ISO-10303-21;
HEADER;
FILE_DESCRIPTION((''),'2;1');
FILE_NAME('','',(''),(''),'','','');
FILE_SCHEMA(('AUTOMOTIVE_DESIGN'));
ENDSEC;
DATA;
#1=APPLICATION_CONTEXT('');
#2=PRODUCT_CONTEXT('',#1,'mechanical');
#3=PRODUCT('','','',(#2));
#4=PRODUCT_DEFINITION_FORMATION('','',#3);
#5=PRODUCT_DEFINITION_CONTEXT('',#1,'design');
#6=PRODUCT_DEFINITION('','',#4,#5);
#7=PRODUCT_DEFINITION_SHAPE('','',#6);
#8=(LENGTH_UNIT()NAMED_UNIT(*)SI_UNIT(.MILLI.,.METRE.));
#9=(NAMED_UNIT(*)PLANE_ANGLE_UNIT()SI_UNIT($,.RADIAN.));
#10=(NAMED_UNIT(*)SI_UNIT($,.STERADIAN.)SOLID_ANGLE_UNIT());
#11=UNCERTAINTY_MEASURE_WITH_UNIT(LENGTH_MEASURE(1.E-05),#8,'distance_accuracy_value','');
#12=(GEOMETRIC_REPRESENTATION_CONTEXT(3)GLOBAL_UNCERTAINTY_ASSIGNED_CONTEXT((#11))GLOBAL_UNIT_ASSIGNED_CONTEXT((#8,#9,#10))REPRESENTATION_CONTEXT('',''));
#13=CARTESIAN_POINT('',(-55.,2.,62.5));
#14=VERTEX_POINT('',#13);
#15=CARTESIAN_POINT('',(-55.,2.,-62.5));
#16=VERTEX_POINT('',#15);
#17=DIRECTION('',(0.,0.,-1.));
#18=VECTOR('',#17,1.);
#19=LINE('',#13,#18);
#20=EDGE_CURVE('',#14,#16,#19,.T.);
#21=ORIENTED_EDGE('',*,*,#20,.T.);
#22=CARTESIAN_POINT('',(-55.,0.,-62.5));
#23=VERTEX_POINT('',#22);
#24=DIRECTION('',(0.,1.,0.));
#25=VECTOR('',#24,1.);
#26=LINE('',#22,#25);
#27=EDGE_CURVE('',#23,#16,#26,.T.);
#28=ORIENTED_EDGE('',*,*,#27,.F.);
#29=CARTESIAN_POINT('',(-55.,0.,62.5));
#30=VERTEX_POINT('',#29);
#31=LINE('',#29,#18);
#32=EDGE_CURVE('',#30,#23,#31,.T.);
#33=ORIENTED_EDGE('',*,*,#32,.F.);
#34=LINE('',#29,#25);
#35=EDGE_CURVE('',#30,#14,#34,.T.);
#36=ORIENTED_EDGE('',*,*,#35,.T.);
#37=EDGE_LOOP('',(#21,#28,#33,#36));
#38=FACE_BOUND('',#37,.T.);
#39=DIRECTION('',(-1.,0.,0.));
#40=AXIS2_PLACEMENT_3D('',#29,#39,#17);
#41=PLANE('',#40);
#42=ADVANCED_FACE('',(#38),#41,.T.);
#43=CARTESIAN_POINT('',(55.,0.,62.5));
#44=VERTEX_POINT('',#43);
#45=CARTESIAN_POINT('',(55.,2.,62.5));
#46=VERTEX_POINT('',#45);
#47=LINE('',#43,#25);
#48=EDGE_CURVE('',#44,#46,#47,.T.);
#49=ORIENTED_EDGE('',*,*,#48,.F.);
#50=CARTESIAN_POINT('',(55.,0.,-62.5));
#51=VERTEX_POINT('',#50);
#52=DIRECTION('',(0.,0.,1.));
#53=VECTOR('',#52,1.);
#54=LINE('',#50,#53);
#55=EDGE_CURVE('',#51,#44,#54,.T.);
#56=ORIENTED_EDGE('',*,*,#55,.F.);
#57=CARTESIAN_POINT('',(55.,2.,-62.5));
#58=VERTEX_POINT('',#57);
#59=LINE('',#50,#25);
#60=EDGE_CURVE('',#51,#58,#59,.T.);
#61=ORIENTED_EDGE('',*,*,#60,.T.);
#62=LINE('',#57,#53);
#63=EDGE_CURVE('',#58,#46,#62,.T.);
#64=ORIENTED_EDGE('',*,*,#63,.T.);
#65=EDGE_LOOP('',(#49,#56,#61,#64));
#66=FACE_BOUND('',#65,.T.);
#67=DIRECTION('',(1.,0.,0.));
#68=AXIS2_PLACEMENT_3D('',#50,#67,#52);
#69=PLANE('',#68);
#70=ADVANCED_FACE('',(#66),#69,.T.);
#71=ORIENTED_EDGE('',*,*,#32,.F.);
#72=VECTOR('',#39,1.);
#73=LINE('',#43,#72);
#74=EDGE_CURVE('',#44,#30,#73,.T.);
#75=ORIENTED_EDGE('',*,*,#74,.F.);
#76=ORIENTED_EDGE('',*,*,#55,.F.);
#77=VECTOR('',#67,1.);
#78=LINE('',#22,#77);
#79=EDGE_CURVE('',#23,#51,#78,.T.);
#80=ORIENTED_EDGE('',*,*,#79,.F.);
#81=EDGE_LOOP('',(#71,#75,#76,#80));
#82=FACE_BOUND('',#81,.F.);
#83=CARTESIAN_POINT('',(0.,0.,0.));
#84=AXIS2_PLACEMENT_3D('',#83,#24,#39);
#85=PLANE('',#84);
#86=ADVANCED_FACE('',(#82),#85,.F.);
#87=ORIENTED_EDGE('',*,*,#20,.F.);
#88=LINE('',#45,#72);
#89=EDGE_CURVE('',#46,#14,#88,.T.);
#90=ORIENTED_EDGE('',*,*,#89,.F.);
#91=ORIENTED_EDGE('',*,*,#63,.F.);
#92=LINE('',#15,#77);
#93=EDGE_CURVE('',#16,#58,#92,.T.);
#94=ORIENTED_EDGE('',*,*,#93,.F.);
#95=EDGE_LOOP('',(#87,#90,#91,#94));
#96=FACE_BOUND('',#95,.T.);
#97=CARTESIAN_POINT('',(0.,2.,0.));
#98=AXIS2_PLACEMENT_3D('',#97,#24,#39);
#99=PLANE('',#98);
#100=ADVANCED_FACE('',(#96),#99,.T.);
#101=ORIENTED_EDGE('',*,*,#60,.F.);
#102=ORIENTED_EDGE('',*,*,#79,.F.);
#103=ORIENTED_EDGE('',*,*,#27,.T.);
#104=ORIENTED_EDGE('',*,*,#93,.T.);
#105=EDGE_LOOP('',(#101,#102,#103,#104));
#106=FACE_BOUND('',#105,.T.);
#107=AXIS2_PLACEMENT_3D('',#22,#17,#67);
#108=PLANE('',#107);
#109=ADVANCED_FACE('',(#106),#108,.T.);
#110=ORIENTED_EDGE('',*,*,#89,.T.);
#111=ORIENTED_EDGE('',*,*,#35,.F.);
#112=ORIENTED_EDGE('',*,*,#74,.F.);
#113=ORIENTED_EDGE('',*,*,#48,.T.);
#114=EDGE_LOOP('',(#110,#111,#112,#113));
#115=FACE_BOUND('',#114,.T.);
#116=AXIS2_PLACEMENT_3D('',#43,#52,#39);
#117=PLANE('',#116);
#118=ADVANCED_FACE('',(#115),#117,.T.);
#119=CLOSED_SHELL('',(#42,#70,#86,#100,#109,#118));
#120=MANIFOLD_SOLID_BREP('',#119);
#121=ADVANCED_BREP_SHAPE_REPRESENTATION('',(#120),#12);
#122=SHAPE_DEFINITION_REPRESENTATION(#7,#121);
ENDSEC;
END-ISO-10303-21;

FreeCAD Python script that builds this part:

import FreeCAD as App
import Part
import Sketcher

V = App.Vector
Q = App.Units.Quantity

doc = App.newDocument("Part")
params = doc.addObject("Spreadsheet::Sheet", "Params")
for row, (alias, value) in enumerate([
    ("sketch1_width", "110 mm"),
    ("sketch1_height", "125 mm"),
    ("pad1_length", "2 mm"),
], start=1):
    params.set(f"A{row}", alias)
    params.set(f"B{row}", "=" + value)
    params.setAlias(f"B{row}", alias)

body = doc.addObject("PartDesign::Body", "Body")

# Sketch on XZ plane
sketch1 = body.newObject("Sketcher::SketchObject", "Sketch")
sketch1.AttachmentSupport = (doc.getObject("XZ_Plane"), [""])
sketch1.MapMode = "FlatFace"
sketch1.addGeometry(Part.LineSegment(V(-55, 62.5, 0), V(55, 62.5, 0)), False)
sketch1.addGeometry(Part.LineSegment(V(55, 62.5, 0), V(55, -62.5, 0)), False)
sketch1.addGeometry(Part.LineSegment(V(55, -62.5, 0), V(-55, -62.5, 0)), False)
sketch1.addGeometry(Part.LineSegment(V(-55, -62.5, 0), V(-55, 62.5, 0)), False)
sketch1.addConstraint(Sketcher.Constraint("Coincident", 0, 2, 1, 1))
sketch1.addConstraint(Sketcher.Constraint("Coincident", 1, 2, 2, 1))
sketch1.addConstraint(Sketcher.Constraint("Coincident", 2, 2, 3, 1))
sketch1.addConstraint(Sketcher.Constraint("Coincident", 3, 2, 0, 1))
sketch1.addConstraint(Sketcher.Constraint("Horizontal", 0))
sketch1.addConstraint(Sketcher.Constraint("Vertical", 1))
sketch1.addConstraint(Sketcher.Constraint("Horizontal", 2))
sketch1.addConstraint(Sketcher.Constraint("Vertical", 3))
sketch1.addConstraint(Sketcher.Constraint("Symmetric", 0, 2, 2, 2, -1, 1))
sketch1.addConstraint(Sketcher.Constraint("DistanceX", 0, 1, 0, 2, Q("110 mm")))
sketch1.addConstraint(Sketcher.Constraint("DistanceY", 1, 2, 1, 1, Q("125 mm")))
sketch1.setExpression("Constraints[9]", "Params.sketch1_width")
sketch1.setExpression("Constraints[10]", "Params.sketch1_height")
pad1 = body.newObject("PartDesign::Pad", "Pad")
pad1.Profile = sketch1
pad1.setExpression("Length", "Params.pad1_length")
pad1.Reversed = True

doc.recompute()
